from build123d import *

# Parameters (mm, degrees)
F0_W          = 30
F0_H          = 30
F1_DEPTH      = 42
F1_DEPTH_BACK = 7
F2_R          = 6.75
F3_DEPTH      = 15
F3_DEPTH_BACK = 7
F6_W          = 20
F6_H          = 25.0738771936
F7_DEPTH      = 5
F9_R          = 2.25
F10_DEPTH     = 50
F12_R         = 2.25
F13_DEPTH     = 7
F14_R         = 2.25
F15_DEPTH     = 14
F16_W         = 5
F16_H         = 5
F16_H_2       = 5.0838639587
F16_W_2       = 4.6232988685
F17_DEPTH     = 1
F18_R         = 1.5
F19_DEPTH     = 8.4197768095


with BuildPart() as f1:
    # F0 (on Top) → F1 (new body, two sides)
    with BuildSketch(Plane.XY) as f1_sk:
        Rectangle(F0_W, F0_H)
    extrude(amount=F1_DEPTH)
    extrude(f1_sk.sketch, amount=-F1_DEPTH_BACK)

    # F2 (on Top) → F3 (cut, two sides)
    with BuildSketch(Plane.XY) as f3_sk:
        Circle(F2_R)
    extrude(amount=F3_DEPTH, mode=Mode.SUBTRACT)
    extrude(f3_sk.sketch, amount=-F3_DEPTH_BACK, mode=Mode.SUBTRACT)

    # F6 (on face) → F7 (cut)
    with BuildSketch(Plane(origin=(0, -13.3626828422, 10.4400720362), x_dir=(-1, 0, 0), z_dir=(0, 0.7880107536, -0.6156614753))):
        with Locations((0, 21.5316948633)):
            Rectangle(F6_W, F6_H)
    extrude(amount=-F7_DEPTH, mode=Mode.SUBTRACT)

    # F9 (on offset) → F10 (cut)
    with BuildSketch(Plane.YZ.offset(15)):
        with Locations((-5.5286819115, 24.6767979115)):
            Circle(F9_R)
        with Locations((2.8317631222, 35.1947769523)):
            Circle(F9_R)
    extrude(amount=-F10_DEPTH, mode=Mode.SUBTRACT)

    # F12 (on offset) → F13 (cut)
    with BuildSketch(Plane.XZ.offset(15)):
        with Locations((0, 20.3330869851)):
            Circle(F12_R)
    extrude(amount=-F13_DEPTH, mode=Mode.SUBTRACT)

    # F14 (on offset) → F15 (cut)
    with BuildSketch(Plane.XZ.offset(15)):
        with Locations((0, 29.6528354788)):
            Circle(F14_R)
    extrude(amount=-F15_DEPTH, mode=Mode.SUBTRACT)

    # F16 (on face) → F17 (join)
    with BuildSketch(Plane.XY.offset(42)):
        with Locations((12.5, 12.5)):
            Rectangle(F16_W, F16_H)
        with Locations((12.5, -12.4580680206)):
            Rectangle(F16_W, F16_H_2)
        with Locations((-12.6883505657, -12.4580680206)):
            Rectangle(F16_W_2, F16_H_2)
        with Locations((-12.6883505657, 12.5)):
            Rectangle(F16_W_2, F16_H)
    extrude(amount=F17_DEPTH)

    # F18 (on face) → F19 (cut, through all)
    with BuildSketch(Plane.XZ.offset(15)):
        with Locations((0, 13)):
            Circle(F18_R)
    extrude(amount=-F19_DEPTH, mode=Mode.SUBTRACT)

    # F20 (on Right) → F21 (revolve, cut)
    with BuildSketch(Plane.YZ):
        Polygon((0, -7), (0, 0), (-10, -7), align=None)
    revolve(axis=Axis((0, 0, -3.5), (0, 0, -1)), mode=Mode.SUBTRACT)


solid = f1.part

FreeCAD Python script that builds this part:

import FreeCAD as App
import Part
import Sketcher

V = App.Vector
Q = App.Units.Quantity


def add_polygon(sketch, points):
    """Adds a closed chain of lines whose ends are joined by coincident constraints."""
    first, n = sketch.GeometryCount, len(points)
    for a, b in zip(points, points[1:] + points[:1]):
        sketch.addGeometry(Part.LineSegment(App.Vector(*a, 0), App.Vector(*b, 0)), False)
    for i in range(n):
        sketch.addConstraint(Sketcher.Constraint("Coincident", first + i, 2, first + (i + 1) % n, 1))

doc = App.newDocument("Part")
params = doc.addObject("Spreadsheet::Sheet", "Params")
for row, (alias, value) in enumerate([
    ("sketch1_width", "30 mm"),
    ("pad1_length", "42 mm"),
    ("pad1_length2", "7 mm"),
    ("sketch2_diameter", "13.5 mm"),
    ("pocket1_length", "15 mm"),
    ("pocket1_length2", "7 mm"),
    ("sketch3_width", "20 mm"),
    ("pocket2_length", "5 mm"),
    ("sketch4_diameter", "4.5 mm"),
    ("pocket3_length", "50 mm"),
    ("sketch5_diameter", "4.5 mm"),
    ("pocket4_length", "7 mm"),
    ("sketch6_diameter", "4.5 mm"),
    ("pocket5_length", "14 mm"),
    ("sketch7_width", "5 mm"),
    ("pad2_length", "1 mm"),
    ("sketch8_diameter", "3 mm"),
    ("pocket6_length", "8.419777 mm"),
    ("sketch9_width", "10 mm"),
    ("sketch9_height", "7 mm"),
    ("groove_angle", "360 deg"),
], start=1):
    params.set(f"A{row}", alias)
    params.set(f"B{row}", "=" + value)
    params.setAlias(f"B{row}", alias)

body = doc.addObject("PartDesign::Body", "Body")

# Sketch on XY plane
sketch1 = doc.addObject("Sketcher::SketchObject", "Sketch")
body.addObject(sketch1)
sketch1.AttachmentSupport = (doc.XY_Plane, [""])
sketch1.MapMode = "FlatFace"
add_polygon(sketch1, [(-15, 15), (-15, -15), (15, -15), (15, 15)])  # lines 0-3
sketch1.addConstraint(Sketcher.Constraint("Vertical", 0))
sketch1.addConstraint(Sketcher.Constraint("Horizontal", 1))
sketch1.addConstraint(Sketcher.Constraint("Vertical", 2))
sketch1.addConstraint(Sketcher.Constraint("Horizontal", 3))
sketch1.addConstraint(Sketcher.Constraint("Symmetric", 0, 2, 2, 2, -1, 1))
sketch1.addConstraint(Sketcher.Constraint("Equal", 3, 0))
sketch1.addConstraint(Sketcher.Constraint("DistanceX", 1, 1, 1, 2, Q("30 mm")))
sketch1.setExpression("Constraints[10]", "Params.sketch1_width")
pad1 = doc.addObject("PartDesign::Pad", "Pad")
body.addObject(pad1)
pad1.Profile = sketch1
pad1.Type = "TwoLengths"
pad1.setExpression("Length", "Params.pad1_length")
pad1.setExpression("Length2", "Params.pad1_length2")

# Sketch on XY plane
sketch2 = doc.addObject("Sketcher::SketchObject", "Sketch001")
body.addObject(sketch2)
sketch2.AttachmentSupport = (doc.XY_Plane, [""])
sketch2.MapMode = "FlatFace"
sketch2.addGeometry(Part.Circle(V(0, 0, 0), V(0, 0, 1), 7), False)
sketch2.addConstraint(Sketcher.Constraint("Coincident", 0, 3, -1, 1))
sketch2.addConstraint(Sketcher.Constraint("Diameter", 0, Q("13.5 mm")))
sketch2.setExpression("Constraints[1]", "Params.sketch2_diameter")
pocket1 = doc.addObject("PartDesign::Pocket", "Pocket")
body.addObject(pocket1)
pocket1.Profile = sketch2
pocket1.Type = "TwoLengths"
pocket1.setExpression("Length", "Params.pocket1_length")
pocket1.setExpression("Length2", "Params.pocket1_length2")
pocket1.Reversed = True

# Sketch on an angled plane
sketch3 = doc.addObject("Sketcher::SketchObject", "Sketch002")
body.addObject(sketch3)
sketch3.Placement = App.Placement(V(0, -13.362683, 10.440072), App.Rotation(V(-1, 0, 0), V(0, 0.615661475, 0.788010754), V(0, 0.788010754, -0.615661475), "ZXY"))
add_polygon(sketch3, [(-10, 34), (-10, 9), (10, 9), (10, 34)])  # lines 0-3
sketch3.addConstraint(Sketcher.Constraint("Vertical", 0))
sketch3.addConstraint(Sketcher.Constraint("Horizontal", 1))
sketch3.addConstraint(Sketcher.Constraint("Vertical", 2))
sketch3.addConstraint(Sketcher.Constraint("Horizontal", 3))
sketch3.addConstraint(Sketcher.Constraint("DistanceX", 1, 1, 1, 2, Q("20 mm")))
sketch3.addConstraint(Sketcher.Constraint("DistanceX", 0, 2, -1, 1, Q("10 mm")))
sketch3.addConstraint(Sketcher.Constraint("DistanceY", 0, 2, 0, 1, Q("25.073877 mm")))
sketch3.addConstraint(Sketcher.Constraint("DistanceY", -1, 1, 0, 2, Q("8.994756 mm")))
sketch3.setExpression("Constraints[8]", "Params.sketch3_width")
pocket2 = doc.addObject("PartDesign::Pocket", "Pocket001")
body.addObject(pocket2)
pocket2.Profile = sketch3
pocket2.setExpression("Length", "Params.pocket2_length")

# Sketch on YZ plane
sketch4 = doc.addObject("Sketcher::SketchObject", "Sketch003")
body.addObject(sketch4)
sketch4.AttachmentSupport = (doc.YZ_Plane, [""])
sketch4.MapMode = "FlatFace"
sketch4.AttachmentOffset = App.Placement(V(0, 0, 15), App.Rotation())
sketch4.addGeometry(Part.Circle(V(-5.5, 24.7, 0), V(0, 0, 1), 2.2), False)
sketch4.addGeometry(Part.Circle(V(2.8, 35.2, 0), V(0, 0, 1), 2.2), False)
sketch4.addConstraint(Sketcher.Constraint("Equal", 0, 1))
sketch4.addConstraint(Sketcher.Constraint("Diameter", 0, Q("4.5 mm")))
sketch4.addConstraint(Sketcher.Constraint("DistanceX", 0, 3, -1, 1, Q("5.528682 mm")))
sketch4.addConstraint(Sketcher.Constraint("DistanceY", 0, 3, 1, 3, Q("10.517979 mm")))
sketch4.addConstraint(Sketcher.Constraint("DistanceY", -1, 1, 0, 3, Q("24.676798 mm")))
sketch4.addConstraint(Sketcher.Constraint("DistanceX", -1, 1, 1, 3, Q("2.831763 mm")))
sketch4.setExpression("Constraints[1]", "Params.sketch4_diameter")
pocket3 = doc.addObject("PartDesign::Pocket", "Pocket002")
body.addObject(pocket3)
pocket3.Profile = sketch4
pocket3.setExpression("Length", "Params.pocket3_length")

# Sketch on XZ plane
sketch5 = doc.addObject("Sketcher::SketchObject", "Sketch004")
body.addObject(sketch5)
sketch5.AttachmentSupport = (doc.XZ_Plane, [""])
sketch5.MapMode = "FlatFace"
sketch5.AttachmentOffset = App.Placement(V(0, 0, 15), App.Rotation())
sketch5.addGeometry(Part.Circle(V(0, 20.3, 0), V(0, 0, 1), 2.2), False)
sketch5.addConstraint(Sketcher.Constraint("PointOnObject", 0, 3, -2))
sketch5.addConstraint(Sketcher.Constraint("Diameter", 0, Q("4.5 mm")))
sketch5.addConstraint(Sketcher.Constraint("DistanceY", -1, 1, 0, 3, Q("20.333087 mm")))
sketch5.setExpression("Constraints[1]", "Params.sketch5_diameter")
pocket4 = doc.addObject("PartDesign::Pocket", "Pocket003")
body.addObject(pocket4)
pocket4.Profile = sketch5
pocket4.setExpression("Length", "Params.pocket4_length")

# Sketch on XZ plane
sketch6 = doc.addObject("Sketcher::SketchObject", "Sketch005")
body.addObject(sketch6)
sketch6.AttachmentSupport = (doc.XZ_Plane, [""])
sketch6.MapMode = "FlatFace"
sketch6.AttachmentOffset = App.Placement(V(0, 0, 15), App.Rotation())
sketch6.addGeometry(Part.Circle(V(0, 29.7, 0), V(0, 0, 1), 2.2), False)
sketch6.addConstraint(Sketcher.Constraint("PointOnObject", 0, 3, -2))
sketch6.addConstraint(Sketcher.Constraint("Diameter", 0, Q("4.5 mm")))
sketch6.addConstraint(Sketcher.Constraint("DistanceY", -1, 1, 0, 3, Q("29.652835 mm")))
sketch6.setExpression("Constraints[1]", "Params.sketch6_diameter")
pocket5 = doc.addObject("PartDesign::Pocket", "Pocket004")
body.addObject(pocket5)
pocket5.Profile = sketch6
pocket5.setExpression("Length", "Params.pocket5_length")

# Sketch on XY plane
sketch7 = doc.addObject("Sketcher::SketchObject", "Sketch006")
body.addObject(sketch7)
sketch7.AttachmentSupport = (doc.XY_Plane, [""])
sketch7.MapMode = "FlatFace"
sketch7.AttachmentOffset = App.Placement(V(0, 0, 42), App.Rotation())
add_polygon(sketch7, [(10, 15), (10, 10), (15, 10), (15, 15)])  # lines 0-3
add_polygon(sketch7, [(10, -9.9), (10, -15), (15, -15), (15, -9.9)])  # lines 4-7
add_polygon(sketch7, [(-15, -9.9), (-15, -15), (-10.4, -15), (-10.4, -9.9)])  # lines 8-11
add_polygon(sketch7, [(-15, 15), (-15, 10), (-10.4, 10), (-10.4, 15)])  # lines 12-15
sketch7.addConstraint(Sketcher.Constraint("Vertical", 0))
sketch7.addConstraint(Sketcher.Constraint("Horizontal", 1))
sketch7.addConstraint(Sketcher.Constraint("Vertical", 2))
sketch7.addConstraint(Sketcher.Constraint("Horizontal", 3))
sketch7.addConstraint(Sketcher.Constraint("Vertical", 4))
sketch7.addConstraint(Sketcher.Constraint("Horizontal", 5))
sketch7.addConstraint(Sketcher.Constraint("Vertical", 6))
sketch7.addConstraint(Sketcher.Constraint("Horizontal", 7))
sketch7.addConstraint(Sketcher.Constraint("Vertical", 8))
sketch7.addConstraint(Sketcher.Constraint("Horizontal", 9))
sketch7.addConstraint(Sketcher.Constraint("Vertical", 10))
sketch7.addConstraint(Sketcher.Constraint("Horizontal", 11))
sketch7.addConstraint(Sketcher.Constraint("Vertical", 12))
sketch7.addConstraint(Sketcher.Constraint("Horizontal", 13))
sketch7.addConstraint(Sketcher.Constraint("Vertical", 14))
sketch7.addConstraint(Sketcher.Constraint("Horizontal", 15))
sketch7.addConstraint(Sketcher.Constraint("Symmetric", 2, 2, 8, 2, -1, 1))
sketch7.addConstraint(Sketcher.Constraint("Symmetric", 5, 2, 15, 2, -1, 1))
sketch7.addConstraint(Sketcher.Constraint("Symmetric", 5, 2, 8, 2, -2))
sketch7.addConstraint(Sketcher.Constraint("Horizontal", 7, 2, 10, 2))
sketch7.addConstraint(Sketcher.Constraint("Horizontal", 1, 2, 12, 2))
sketch7.addConstraint(Sketcher.Constraint("Vertical", 3, 2, 4, 2))
sketch7.addConstraint(Sketcher.Constraint("Vertical", 10, 2, 13, 2))
sketch7.addConstraint(Sketcher.Constraint("Equal", 7, 0))
sketch7.addConstraint(Sketcher.Constraint("DistanceX", 1, 1, 1, 2, Q("5 mm")))
sketch7.addConstraint(Sketcher.Constraint("DistanceX", -1, 1, 0, 2, Q("10 mm")))
sketch7.addConstraint(Sketcher.Constraint("DistanceY", -1, 1, 0, 2, Q("10 mm")))
sketch7.addConstraint(Sketcher.Constraint("DistanceX", 9, 1, 9, 2, Q("4.623299 mm")))
sketch7.addConstraint(Sketcher.Constraint("DistanceY", 4, 2, 4, 1, Q("5.083864 mm")))
sketch7.setExpression("Constraints[40]", "Params.sketch7_width")
pad2 = doc.addObject("PartDesign::Pad", "Pad001")
body.addObject(pad2)
pad2.Profile = sketch7
pad2.setExpression("Length", "Params.pad2_length")

# Sketch on XZ plane
sketch8 = doc.addObject("Sketcher::SketchObject", "Sketch007")
body.addObject(sketch8)
sketch8.AttachmentSupport = (doc.XZ_Plane, [""])
sketch8.MapMode = "FlatFace"
sketch8.AttachmentOffset = App.Placement(V(0, 0, 15), App.Rotation())
sketch8.addGeometry(Part.Circle(V(0, 13, 0), V(0, 0, 1), 1.5), False)
sketch8.addConstraint(Sketcher.Constraint("PointOnObject", 0, 3, -2))
sketch8.addConstraint(Sketcher.Constraint("Diameter", 0, Q("3 mm")))
sketch8.addConstraint(Sketcher.Constraint("DistanceY", -1, 1, 0, 3, Q("13 mm")))
sketch8.setExpression("Constraints[1]", "Params.sketch8_diameter")
pocket6 = doc.addObject("PartDesign::Pocket", "Pocket005")
body.addObject(pocket6)
pocket6.Profile = sketch8
pocket6.setExpression("Length", "Params.pocket6_length")

# Sketch on YZ plane
sketch9 = doc.addObject("Sketcher::SketchObject", "Sketch008")
body.addObject(sketch9)
sketch9.AttachmentSupport = (doc.YZ_Plane, [""])
sketch9.MapMode = "FlatFace"
add_polygon(sketch9, [(0, -7), (0, 0), (-10, -7)])  # lines 0-2
sketch9.addConstraint(Sketcher.Constraint("Vertical", 0))
sketch9.addConstraint(Sketcher.Constraint("Horizontal", 2))
sketch9.addConstraint(Sketcher.Constraint("Coincident", 0, 2, -1, 1))
sketch9.addConstraint(Sketcher.Constraint("DistanceX", 2, 1, 2, 2, Q("10 mm")))
sketch9.addConstraint(Sketcher.Constraint("DistanceY", 0, 1, 0, 2, Q("7 mm")))
sketch9.setExpression("Constraints[6]", "Params.sketch9_width")
sketch9.setExpression("Constraints[7]", "Params.sketch9_height")
groove = doc.addObject("PartDesign::Groove", "Groove")
body.addObject(groove)
groove.Profile = sketch9
groove.ReferenceAxis = (sketch9, ["V_Axis"])
groove.setExpression("Angle", "Params.groove_angle")

doc.recompute()
